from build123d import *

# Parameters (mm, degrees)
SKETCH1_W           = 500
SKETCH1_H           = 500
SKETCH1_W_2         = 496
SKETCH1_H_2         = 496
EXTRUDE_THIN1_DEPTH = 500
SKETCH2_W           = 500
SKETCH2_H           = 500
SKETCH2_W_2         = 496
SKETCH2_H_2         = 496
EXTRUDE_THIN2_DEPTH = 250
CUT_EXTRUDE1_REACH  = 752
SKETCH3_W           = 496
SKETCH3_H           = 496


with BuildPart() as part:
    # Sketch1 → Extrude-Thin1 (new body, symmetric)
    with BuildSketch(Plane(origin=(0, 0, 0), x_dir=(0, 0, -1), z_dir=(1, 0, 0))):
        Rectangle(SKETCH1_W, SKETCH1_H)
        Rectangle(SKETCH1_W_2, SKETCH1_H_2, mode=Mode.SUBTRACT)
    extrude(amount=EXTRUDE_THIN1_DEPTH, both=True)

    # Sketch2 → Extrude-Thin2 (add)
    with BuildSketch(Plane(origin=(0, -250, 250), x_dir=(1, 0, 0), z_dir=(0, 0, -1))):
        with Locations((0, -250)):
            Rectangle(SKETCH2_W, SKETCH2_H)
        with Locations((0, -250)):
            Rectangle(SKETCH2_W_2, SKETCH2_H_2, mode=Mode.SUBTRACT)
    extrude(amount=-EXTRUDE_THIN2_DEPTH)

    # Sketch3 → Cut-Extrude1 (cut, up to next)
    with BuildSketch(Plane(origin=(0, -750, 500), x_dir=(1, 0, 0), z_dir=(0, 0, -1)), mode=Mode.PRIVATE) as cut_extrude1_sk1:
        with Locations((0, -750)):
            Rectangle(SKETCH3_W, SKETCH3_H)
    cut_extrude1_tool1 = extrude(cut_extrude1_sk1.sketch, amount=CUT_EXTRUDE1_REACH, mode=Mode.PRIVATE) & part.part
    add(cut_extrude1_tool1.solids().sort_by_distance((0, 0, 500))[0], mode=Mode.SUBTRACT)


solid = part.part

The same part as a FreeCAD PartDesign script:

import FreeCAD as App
import Part
import Sketcher
from FreeCAD import Vector
Q = App.Units.Quantity

doc = App.newDocument("Part")
params = doc.addObject("Spreadsheet::Sheet", "Params")
for row, (alias, value) in enumerate([
    ("sketch1_width", "500 mm"),
    ("sketch1_width2", "496 mm"),
    ("pad1_length", "1000 mm"),
    ("sketch2_width", "500 mm"),
    ("sketch2_width2", "496 mm"),
    ("pad2_length", "250 mm"),
    ("sketch3_width", "496 mm"),
    ("pocket1_length", "252 mm"),
], start=1):
    params.set(f"A{row}", alias)
    params.set(f"B{row}", "=" + value)
    params.setAlias(f"B{row}", alias)

body = doc.addObject("PartDesign::Body", "Body")

# Sketch on YZ plane
sketch1 = body.newObject("Sketcher::SketchObject", "Sketch")
sketch1.AttachmentSupport = (doc.getObject("YZ_Plane"), [""])
sketch1.MapMode = "FlatFace"
sketch1.addGeometry([
    Part.LineSegment(Vector(250, 250, 0), Vector(-250, 250, 0)),  # 0
    Part.LineSegment(Vector(-250, 250, 0), Vector(-250, -250, 0)),  # 1
    Part.LineSegment(Vector(-250, -250, 0), Vector(250, -250, 0)),  # 2
    Part.LineSegment(Vector(250, -250, 0), Vector(250, 250, 0)),  # 3
    Part.LineSegment(Vector(-248, -248, 0), Vector(-248, 248, 0)),  # 4
    Part.LineSegment(Vector(-248, 248, 0), Vector(248, 248, 0)),  # 5
    Part.LineSegment(Vector(248, 248, 0), Vector(248, -248, 0)),  # 6
    Part.LineSegment(Vector(248, -248, 0), Vector(-248, -248, 0)),  # 7
], False)
sketch1.addConstraint([
    Sketcher.Constraint("Coincident", 0, 2, 1, 1),
    Sketcher.Constraint("Coincident", 1, 2, 2, 1),
    Sketcher.Constraint("Coincident", 2, 2, 3, 1),
    Sketcher.Constraint("Coincident", 3, 2, 0, 1),
    Sketcher.Constraint("Coincident", 4, 2, 5, 1),
    Sketcher.Constraint("Coincident", 5, 2, 6, 1),
    Sketcher.Constraint("Coincident", 6, 2, 7, 1),
    Sketcher.Constraint("Coincident", 7, 2, 4, 1),
    Sketcher.Constraint("Horizontal", 0),
    Sketcher.Constraint("Vertical", 1),
    Sketcher.Constraint("Horizontal", 2),
    Sketcher.Constraint("Vertical", 3),
    Sketcher.Constraint("Vertical", 4),
    Sketcher.Constraint("Horizontal", 5),
    Sketcher.Constraint("Vertical", 6),
    Sketcher.Constraint("Horizontal", 7),
    Sketcher.Constraint("Symmetric", 0, 2, 2, 2, -1, 1),
    Sketcher.Constraint("Symmetric", 4, 2, 6, 2, -1, 1),
    Sketcher.Constraint("Equal", 2, 1),
    Sketcher.Constraint("Equal", 7, 4),
    Sketcher.Constraint("DistanceX", 0, 2, 0, 1, Q("500 mm")),
    Sketcher.Constraint("DistanceX", 5, 1, 5, 2, Q("496 mm")),
])
sketch1.setExpression("Constraints[20]", "Params.sketch1_width")
sketch1.setExpression("Constraints[21]", "Params.sketch1_width2")
pad1 = body.newObject("PartDesign::Pad", "Pad")
pad1.Profile = sketch1
pad1.setExpression("Length", "Params.pad1_length")
pad1.Midplane = True

# Sketch on XY plane
sketch2 = body.newObject("Sketcher::SketchObject", "Sketch001")
sketch2.AttachmentSupport = (doc.getObject("XY_Plane"), [""])
sketch2.MapMode = "FlatFace"
sketch2.AttachmentOffset = App.Placement(Vector(0, 0, 250), App.Rotation())
sketch2.addGeometry([
    Part.LineSegment(Vector(-250, -250, 0), Vector(-250, 250, 0)),  # 0
    Part.LineSegment(Vector(-250, 250, 0), Vector(250, 250, 0)),  # 1
    Part.LineSegment(Vector(250, 250, 0), Vector(250, -250, 0)),  # 2
    Part.LineSegment(Vector(250, -250, 0), Vector(-250, -250, 0)),  # 3
    Part.LineSegment(Vector(248, 248, 0), Vector(-248, 248, 0)),  # 4
    Part.LineSegment(Vector(-248, 248, 0), Vector(-248, -248, 0)),  # 5
    Part.LineSegment(Vector(-248, -248, 0), Vector(248, -248, 0)),  # 6
    Part.LineSegment(Vector(248, -248, 0), Vector(248, 248, 0)),  # 7
], False)
sketch2.addConstraint([
    Sketcher.Constraint("Coincident", 0, 2, 1, 1),
    Sketcher.Constraint("Coincident", 1, 2, 2, 1),
    Sketcher.Constraint("Coincident", 2, 2, 3, 1),
    Sketcher.Constraint("Coincident", 3, 2, 0, 1),
    Sketcher.Constraint("Coincident", 4, 2, 5, 1),
    Sketcher.Constraint("Coincident", 5, 2, 6, 1),
    Sketcher.Constraint("Coincident", 6, 2, 7, 1),
    Sketcher.Constraint("Coincident", 7, 2, 4, 1),
    Sketcher.Constraint("Vertical", 0),
    Sketcher.Constraint("Horizontal", 1),
    Sketcher.Constraint("Vertical", 2),
    Sketcher.Constraint("Horizontal", 3),
    Sketcher.Constraint("Horizontal", 4),
    Sketcher.Constraint("Vertical", 5),
    Sketcher.Constraint("Horizontal", 6),
    Sketcher.Constraint("Vertical", 7),
    Sketcher.Constraint("Symmetric", 0, 2, 2, 2, -1, 1),
    Sketcher.Constraint("Symmetric", 4, 2, 6, 2, -1, 1),
    Sketcher.Constraint("Equal", 3, 0),
    Sketcher.Constraint("Equal", 6, 5),
    Sketcher.Constraint("DistanceX", 1, 1, 1, 2, Q("500 mm")),
    Sketcher.Constraint("DistanceX", 4, 2, 4, 1, Q("496 mm")),
])
sketch2.setExpression("Constraints[20]", "Params.sketch2_width")
sketch2.setExpression("Constraints[21]", "Params.sketch2_width2")
pad2 = body.newObject("PartDesign::Pad", "Pad001")
pad2.Profile = sketch2
pad2.setExpression("Length", "Params.pad2_length")

# Sketch on XY plane
sketch3 = body.newObject("Sketcher::SketchObject", "Sketch002")
sketch3.AttachmentSupport = (doc.getObject("XY_Plane"), [""])
sketch3.MapMode = "FlatFace"
sketch3.AttachmentOffset = App.Placement(Vector(0, 0, 500), App.Rotation())
sketch3.addGeometry([
    Part.LineSegment(Vector(-248, -248, 0), Vector(-248, 248, 0)),
    Part.LineSegment(Vector(-248, 248, 0), Vector(248, 248, 0)),
    Part.LineSegment(Vector(248, 248, 0), Vector(248, -248, 0)),
    Part.LineSegment(Vector(248, -248, 0), Vector(-248, -248, 0)),
], False)
sketch3.addConstraint([
    Sketcher.Constraint("Coincident", 0, 2, 1, 1),
    Sketcher.Constraint("Coincident", 1, 2, 2, 1),
    Sketcher.Constraint("Coincident", 2, 2, 3, 1),
    Sketcher.Constraint("Coincident", 3, 2, 0, 1),
    Sketcher.Constraint("Vertical", 0),
    Sketcher.Constraint("Horizontal", 1),
    Sketcher.Constraint("Vertical", 2),
    Sketcher.Constraint("Horizontal", 3),
    Sketcher.Constraint("Symmetric", 0, 2, 2, 2, -1, 1),
    Sketcher.Constraint("Equal", 3, 0),
    Sketcher.Constraint("DistanceX", 1, 1, 1, 2, Q("496 mm")),
])
sketch3.setExpression("Constraints[10]", "Params.sketch3_width")
pocket1 = body.newObject("PartDesign::Pocket", "Pocket")
pocket1.Profile = sketch3
pocket1.setExpression("Length", "Params.pocket1_length")

doc.recompute()
